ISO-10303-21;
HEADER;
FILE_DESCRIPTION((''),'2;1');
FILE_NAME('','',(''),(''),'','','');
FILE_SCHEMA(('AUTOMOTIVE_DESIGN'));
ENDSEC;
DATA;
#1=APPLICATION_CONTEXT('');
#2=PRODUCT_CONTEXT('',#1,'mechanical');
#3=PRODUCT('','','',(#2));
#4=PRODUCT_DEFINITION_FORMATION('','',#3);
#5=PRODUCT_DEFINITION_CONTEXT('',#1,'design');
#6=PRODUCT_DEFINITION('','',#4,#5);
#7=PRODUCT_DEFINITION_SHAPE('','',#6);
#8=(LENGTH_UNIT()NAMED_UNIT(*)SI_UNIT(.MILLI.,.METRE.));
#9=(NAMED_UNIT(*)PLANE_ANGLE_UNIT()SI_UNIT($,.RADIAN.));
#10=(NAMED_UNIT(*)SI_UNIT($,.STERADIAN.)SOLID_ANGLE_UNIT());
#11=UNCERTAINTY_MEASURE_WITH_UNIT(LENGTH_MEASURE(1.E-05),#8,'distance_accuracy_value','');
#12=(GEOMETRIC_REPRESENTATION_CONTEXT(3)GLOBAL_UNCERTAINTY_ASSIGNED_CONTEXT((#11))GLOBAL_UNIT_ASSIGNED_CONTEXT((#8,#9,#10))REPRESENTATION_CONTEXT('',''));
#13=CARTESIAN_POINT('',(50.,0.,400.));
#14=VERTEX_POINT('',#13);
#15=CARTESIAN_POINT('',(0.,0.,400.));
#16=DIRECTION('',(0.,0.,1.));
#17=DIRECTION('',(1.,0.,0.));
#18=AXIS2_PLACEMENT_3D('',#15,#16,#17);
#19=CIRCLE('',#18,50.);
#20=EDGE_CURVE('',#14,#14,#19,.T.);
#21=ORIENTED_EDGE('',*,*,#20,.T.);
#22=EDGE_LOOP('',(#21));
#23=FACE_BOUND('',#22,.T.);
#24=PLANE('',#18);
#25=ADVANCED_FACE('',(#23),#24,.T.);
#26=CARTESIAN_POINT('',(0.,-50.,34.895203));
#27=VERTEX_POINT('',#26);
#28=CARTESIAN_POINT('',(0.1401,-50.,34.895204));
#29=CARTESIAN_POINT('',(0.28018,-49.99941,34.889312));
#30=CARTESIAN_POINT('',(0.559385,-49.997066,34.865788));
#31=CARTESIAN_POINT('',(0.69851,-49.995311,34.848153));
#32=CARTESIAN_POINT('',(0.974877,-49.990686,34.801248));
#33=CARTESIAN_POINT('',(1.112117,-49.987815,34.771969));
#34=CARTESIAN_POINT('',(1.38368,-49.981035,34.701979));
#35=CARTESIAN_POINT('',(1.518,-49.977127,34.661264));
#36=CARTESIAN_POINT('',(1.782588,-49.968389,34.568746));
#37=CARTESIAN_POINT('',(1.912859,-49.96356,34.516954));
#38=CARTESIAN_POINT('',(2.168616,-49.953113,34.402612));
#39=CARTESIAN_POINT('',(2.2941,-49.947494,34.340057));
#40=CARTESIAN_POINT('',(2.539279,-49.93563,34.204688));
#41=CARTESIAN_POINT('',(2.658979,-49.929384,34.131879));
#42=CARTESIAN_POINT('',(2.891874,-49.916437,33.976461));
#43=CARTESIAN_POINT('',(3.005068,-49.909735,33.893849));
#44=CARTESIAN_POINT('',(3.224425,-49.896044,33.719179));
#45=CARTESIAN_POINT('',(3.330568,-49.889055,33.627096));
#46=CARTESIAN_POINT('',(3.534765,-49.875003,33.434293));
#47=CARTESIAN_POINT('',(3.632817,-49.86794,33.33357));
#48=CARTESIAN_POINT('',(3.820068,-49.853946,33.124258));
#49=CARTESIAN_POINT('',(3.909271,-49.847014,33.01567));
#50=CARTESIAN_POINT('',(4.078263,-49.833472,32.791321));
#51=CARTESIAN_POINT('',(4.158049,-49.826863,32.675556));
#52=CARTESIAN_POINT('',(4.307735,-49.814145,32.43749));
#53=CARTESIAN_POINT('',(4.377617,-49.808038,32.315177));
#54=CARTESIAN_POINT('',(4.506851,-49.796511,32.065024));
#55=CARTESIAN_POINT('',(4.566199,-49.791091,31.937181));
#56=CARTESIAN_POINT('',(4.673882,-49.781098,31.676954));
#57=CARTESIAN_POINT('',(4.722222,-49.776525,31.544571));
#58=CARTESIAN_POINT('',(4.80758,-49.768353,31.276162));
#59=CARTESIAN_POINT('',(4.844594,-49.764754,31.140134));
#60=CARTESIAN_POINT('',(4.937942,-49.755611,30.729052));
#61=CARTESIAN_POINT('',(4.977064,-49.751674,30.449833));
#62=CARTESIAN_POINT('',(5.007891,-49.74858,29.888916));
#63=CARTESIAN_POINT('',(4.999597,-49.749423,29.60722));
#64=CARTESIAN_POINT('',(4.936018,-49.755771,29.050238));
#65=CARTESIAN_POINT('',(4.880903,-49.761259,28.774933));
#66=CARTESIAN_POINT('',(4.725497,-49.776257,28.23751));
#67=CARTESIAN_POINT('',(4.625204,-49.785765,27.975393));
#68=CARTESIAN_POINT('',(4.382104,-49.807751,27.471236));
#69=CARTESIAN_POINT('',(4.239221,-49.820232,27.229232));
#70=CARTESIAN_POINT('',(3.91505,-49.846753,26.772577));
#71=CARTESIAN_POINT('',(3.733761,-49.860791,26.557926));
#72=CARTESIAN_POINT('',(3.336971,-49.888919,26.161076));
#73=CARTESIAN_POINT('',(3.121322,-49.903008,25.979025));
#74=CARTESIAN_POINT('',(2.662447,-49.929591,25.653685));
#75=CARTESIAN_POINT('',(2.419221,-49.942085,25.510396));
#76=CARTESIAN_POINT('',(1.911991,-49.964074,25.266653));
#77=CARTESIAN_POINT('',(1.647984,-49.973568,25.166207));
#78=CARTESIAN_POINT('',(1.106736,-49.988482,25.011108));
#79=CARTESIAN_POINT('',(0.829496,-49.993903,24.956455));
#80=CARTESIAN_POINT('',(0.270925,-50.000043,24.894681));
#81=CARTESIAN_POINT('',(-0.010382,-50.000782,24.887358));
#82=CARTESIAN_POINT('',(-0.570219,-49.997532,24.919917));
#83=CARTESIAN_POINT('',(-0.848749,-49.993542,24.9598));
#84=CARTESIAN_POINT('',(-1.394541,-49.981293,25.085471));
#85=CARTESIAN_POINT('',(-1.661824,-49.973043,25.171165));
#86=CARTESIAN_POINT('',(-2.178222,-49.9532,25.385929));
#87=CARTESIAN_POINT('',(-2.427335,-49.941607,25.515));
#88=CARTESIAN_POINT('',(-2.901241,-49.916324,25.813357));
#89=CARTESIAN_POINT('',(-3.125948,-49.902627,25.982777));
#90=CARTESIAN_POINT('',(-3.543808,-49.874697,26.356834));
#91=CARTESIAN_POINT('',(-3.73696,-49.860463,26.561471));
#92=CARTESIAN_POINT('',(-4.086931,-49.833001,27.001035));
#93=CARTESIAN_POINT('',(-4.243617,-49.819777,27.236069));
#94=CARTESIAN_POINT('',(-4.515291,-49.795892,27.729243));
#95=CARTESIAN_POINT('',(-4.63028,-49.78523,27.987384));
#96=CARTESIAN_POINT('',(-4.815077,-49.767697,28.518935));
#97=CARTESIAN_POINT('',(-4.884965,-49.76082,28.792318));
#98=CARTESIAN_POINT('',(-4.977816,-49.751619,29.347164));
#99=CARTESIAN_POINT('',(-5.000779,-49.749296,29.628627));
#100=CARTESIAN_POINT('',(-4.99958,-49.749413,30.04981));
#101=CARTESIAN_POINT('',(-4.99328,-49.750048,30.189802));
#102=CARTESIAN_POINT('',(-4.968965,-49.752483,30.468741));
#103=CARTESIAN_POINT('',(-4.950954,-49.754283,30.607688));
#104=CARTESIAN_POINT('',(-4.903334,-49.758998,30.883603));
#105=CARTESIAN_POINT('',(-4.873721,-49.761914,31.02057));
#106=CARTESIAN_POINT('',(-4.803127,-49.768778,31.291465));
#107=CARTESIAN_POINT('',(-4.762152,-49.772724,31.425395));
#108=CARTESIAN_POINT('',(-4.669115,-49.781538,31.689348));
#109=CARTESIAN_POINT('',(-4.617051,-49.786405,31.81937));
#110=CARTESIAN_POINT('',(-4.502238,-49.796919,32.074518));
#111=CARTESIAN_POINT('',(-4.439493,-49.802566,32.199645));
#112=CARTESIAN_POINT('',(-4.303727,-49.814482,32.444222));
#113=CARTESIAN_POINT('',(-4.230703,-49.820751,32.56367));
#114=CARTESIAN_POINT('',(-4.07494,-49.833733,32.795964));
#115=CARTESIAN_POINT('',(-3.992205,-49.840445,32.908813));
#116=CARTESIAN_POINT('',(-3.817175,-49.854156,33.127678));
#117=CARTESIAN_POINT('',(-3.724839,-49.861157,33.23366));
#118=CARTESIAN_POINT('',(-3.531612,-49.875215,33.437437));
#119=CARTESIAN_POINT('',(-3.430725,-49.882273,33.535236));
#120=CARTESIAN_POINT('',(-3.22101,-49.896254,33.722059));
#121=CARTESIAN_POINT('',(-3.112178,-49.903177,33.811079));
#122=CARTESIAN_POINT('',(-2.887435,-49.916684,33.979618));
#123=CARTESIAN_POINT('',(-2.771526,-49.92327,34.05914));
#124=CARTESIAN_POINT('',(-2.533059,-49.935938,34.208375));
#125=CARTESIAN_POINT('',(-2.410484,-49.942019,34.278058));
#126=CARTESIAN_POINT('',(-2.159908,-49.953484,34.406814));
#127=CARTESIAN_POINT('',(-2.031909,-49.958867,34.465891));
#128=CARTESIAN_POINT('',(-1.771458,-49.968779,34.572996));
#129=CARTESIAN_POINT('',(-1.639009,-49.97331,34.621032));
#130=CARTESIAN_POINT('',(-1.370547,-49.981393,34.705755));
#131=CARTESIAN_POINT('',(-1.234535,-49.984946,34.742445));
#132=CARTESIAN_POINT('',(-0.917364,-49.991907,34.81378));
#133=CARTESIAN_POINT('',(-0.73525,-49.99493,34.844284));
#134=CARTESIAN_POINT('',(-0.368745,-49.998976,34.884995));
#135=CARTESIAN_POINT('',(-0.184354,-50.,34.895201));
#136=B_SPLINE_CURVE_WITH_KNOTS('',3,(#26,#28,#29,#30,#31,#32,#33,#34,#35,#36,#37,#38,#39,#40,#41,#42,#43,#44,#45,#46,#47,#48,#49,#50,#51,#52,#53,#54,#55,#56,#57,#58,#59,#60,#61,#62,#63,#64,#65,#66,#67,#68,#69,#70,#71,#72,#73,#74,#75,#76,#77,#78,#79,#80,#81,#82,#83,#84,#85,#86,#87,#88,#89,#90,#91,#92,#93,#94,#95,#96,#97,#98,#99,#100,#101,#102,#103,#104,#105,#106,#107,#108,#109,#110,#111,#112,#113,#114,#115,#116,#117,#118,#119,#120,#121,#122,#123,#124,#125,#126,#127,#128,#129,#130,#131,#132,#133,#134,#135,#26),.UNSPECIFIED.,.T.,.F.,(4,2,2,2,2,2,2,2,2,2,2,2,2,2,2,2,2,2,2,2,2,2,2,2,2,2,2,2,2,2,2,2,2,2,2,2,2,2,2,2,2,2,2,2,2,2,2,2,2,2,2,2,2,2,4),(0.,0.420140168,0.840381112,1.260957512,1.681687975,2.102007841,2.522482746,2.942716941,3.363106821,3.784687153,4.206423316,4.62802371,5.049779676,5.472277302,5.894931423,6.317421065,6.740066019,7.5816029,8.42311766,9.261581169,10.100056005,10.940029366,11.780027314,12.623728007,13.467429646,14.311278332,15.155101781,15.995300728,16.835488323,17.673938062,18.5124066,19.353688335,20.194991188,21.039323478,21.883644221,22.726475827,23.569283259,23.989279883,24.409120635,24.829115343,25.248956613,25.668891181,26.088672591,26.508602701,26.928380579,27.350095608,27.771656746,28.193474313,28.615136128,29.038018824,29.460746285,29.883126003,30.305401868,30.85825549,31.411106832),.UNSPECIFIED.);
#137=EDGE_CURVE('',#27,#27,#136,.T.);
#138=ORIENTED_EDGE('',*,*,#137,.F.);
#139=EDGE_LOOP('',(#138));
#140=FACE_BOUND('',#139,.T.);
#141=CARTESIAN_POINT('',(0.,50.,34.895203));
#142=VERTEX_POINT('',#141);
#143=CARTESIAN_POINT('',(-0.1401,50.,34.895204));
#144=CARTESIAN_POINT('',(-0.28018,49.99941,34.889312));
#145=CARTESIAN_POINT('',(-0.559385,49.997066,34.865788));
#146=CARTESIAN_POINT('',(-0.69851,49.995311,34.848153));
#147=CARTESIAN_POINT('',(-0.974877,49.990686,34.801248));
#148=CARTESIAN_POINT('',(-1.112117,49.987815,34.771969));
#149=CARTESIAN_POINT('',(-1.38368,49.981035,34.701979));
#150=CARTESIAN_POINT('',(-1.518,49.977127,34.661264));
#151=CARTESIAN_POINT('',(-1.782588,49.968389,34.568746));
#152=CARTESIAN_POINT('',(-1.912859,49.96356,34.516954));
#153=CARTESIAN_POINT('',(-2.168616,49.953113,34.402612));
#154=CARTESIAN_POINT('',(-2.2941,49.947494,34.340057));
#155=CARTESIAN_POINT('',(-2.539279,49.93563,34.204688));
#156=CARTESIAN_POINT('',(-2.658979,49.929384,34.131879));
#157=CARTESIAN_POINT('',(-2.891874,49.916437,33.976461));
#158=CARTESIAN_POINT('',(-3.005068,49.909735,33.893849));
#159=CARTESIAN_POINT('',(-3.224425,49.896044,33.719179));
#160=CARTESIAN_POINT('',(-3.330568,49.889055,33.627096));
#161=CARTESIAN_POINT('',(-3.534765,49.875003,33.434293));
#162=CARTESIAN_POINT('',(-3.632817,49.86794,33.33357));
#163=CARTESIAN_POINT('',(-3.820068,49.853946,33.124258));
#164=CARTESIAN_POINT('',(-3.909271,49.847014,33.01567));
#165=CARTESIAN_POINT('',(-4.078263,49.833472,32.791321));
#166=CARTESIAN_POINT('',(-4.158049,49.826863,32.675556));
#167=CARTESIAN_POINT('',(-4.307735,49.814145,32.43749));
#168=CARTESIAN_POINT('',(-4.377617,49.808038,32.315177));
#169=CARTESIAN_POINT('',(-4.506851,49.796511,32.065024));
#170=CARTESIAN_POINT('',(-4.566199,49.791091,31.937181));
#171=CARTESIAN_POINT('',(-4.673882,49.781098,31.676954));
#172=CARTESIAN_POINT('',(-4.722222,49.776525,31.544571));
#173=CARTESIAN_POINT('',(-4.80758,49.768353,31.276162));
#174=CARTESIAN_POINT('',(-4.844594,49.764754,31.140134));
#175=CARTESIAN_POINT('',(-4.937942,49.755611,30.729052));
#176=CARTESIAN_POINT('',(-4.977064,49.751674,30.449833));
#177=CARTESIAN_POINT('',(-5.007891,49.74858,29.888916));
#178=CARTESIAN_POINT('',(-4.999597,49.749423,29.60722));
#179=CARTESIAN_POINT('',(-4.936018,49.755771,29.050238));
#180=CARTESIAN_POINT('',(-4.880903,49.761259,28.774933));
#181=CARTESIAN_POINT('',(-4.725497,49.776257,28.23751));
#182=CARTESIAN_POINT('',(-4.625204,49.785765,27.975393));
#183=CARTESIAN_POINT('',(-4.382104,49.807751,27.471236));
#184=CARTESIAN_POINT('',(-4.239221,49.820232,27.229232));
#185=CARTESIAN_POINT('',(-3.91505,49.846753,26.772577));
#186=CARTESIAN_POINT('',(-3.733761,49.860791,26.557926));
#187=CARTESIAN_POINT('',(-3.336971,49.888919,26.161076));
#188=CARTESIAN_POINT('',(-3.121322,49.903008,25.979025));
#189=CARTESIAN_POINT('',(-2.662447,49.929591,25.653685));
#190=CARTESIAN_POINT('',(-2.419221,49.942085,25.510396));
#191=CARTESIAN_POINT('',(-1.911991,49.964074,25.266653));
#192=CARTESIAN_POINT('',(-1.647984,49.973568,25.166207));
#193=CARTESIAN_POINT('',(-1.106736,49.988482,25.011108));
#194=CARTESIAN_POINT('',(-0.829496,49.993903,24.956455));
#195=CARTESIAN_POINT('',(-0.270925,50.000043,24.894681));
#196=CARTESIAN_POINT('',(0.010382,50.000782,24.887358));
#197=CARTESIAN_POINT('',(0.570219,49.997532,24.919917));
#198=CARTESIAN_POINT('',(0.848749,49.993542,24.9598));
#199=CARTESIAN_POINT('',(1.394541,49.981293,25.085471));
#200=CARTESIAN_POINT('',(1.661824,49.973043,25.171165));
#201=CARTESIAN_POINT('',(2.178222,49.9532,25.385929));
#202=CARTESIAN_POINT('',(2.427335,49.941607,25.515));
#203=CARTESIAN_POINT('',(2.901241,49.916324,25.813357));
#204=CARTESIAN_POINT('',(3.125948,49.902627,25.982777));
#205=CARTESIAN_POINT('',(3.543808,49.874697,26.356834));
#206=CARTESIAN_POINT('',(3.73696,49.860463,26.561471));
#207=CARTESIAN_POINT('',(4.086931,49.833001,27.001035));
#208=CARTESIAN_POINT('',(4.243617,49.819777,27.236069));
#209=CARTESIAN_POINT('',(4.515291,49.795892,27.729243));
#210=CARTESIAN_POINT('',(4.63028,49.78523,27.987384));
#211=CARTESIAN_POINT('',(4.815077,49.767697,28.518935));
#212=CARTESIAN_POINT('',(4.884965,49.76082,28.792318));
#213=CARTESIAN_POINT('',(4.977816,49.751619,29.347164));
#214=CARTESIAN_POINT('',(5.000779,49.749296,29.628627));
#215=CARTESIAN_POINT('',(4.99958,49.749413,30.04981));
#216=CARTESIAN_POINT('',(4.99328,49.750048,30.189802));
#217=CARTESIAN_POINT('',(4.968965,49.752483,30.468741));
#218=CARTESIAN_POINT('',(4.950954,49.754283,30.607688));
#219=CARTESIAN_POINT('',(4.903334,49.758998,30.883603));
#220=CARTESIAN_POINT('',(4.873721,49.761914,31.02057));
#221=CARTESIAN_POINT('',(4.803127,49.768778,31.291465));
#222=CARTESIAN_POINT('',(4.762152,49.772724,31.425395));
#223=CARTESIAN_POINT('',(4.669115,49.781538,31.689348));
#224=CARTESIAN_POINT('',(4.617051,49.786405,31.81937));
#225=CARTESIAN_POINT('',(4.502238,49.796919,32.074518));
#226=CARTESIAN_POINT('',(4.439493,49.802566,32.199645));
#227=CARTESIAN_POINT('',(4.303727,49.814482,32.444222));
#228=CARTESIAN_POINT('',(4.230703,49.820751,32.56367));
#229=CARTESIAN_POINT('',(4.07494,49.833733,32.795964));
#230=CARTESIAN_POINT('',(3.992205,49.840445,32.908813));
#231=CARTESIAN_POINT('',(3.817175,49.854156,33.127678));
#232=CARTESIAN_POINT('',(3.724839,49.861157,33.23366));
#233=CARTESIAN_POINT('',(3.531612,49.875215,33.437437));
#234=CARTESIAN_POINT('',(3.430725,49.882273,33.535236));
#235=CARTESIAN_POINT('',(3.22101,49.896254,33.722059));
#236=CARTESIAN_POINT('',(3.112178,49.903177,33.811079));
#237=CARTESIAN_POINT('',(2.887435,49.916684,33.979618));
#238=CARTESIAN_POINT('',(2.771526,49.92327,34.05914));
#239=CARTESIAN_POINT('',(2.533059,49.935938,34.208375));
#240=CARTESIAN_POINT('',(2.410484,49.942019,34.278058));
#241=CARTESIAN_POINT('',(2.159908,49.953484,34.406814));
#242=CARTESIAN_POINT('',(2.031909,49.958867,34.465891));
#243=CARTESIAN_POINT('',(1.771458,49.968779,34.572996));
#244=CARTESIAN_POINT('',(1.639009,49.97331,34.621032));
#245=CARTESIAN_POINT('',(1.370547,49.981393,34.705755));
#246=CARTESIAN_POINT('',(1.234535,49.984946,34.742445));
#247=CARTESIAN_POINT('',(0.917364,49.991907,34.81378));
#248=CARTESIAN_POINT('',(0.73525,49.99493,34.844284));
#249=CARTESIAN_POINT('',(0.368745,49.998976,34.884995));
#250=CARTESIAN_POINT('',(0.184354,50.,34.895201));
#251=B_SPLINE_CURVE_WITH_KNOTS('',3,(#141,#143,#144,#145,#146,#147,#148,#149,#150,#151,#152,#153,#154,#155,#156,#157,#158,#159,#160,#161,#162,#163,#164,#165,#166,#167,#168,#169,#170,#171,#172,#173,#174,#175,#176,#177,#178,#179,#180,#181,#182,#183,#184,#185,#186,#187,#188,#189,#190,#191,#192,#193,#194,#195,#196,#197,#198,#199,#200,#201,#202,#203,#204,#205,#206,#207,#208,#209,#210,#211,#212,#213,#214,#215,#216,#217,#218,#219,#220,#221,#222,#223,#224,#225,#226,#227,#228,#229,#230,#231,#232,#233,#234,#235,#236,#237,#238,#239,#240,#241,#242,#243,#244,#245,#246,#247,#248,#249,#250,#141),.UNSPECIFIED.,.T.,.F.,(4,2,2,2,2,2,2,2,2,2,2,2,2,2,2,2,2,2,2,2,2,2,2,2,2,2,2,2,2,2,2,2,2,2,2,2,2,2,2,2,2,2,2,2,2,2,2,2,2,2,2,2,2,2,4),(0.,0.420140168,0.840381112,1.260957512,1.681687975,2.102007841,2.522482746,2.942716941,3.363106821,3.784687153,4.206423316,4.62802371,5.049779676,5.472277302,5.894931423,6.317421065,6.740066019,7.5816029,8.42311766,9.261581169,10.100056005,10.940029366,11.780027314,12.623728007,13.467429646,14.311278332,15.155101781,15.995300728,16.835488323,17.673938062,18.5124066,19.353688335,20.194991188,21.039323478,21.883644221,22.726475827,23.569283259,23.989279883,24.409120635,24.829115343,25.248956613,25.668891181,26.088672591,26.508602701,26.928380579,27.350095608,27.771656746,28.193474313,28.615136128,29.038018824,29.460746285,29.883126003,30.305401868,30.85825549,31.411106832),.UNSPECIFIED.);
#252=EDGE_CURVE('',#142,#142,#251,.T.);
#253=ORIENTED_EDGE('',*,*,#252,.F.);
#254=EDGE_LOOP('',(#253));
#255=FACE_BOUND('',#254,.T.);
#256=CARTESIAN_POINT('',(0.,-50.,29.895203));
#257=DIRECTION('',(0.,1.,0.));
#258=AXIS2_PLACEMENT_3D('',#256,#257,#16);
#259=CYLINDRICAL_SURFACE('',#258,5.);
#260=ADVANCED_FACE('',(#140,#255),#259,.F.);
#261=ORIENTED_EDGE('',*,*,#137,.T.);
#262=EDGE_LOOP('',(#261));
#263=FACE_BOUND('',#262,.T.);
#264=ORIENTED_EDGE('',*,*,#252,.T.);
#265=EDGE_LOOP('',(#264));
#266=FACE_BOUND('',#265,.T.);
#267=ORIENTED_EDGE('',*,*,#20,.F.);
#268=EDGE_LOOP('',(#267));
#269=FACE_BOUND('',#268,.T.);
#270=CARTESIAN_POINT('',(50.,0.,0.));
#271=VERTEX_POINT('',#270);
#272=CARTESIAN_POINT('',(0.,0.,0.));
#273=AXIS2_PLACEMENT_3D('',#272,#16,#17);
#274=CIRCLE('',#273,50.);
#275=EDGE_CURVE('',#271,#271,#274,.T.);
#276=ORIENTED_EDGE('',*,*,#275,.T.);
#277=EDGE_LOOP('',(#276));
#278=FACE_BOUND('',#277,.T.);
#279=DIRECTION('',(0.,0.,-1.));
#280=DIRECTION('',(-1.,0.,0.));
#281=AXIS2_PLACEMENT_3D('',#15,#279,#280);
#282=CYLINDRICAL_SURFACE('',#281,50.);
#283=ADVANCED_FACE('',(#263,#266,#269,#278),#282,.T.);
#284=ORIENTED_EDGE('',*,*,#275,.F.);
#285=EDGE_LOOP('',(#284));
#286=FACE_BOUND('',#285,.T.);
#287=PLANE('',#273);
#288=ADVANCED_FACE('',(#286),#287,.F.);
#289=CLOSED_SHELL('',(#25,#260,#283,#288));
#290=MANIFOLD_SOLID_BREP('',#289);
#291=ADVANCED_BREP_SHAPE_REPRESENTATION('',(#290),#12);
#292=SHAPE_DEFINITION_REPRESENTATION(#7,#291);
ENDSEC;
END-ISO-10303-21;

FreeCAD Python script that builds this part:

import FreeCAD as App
import Part
import Sketcher

doc = App.newDocument("Part")
params = doc.addObject("Spreadsheet::Sheet", "Params")
for row, (alias, value) in enumerate([
    ("sketch1_diameter", "100 mm"),
    ("pad1_length", "400 mm"),
    ("sketch2_diameter", "10 mm"),
], start=1):
    params.set(f"A{row}", alias)
    params.set(f"B{row}", "=" + value)
    params.setAlias(f"B{row}", alias)

body = doc.addObject("PartDesign::Body", "Body")

sketch1 = doc.addObject("Sketcher::SketchObject", "Sketch")
body.addObject(sketch1)
sketch1.AttachmentSupport = (doc.XY_Plane, [""])
sketch1.MapMode = "FlatFace"
sketch1.addGeometry(Part.Circle(App.Vector(0, 0, 0), App.Vector(0, 0, 1), 50), False)
sketch1.addConstraint([
    Sketcher.Constraint("Coincident", 0, 3, -1, 1),
    Sketcher.Constraint("Diameter", 0, 100.0),
])
sketch1.setExpression("Constraints[1]", "Params.sketch1_diameter")
pad1 = doc.addObject("PartDesign::Pad", "Pad")
body.addObject(pad1)
pad1.Profile = sketch1
pad1.setExpression("Length", "Params.pad1_length")

sketch2 = doc.addObject("Sketcher::SketchObject", "Sketch001")
body.addObject(sketch2)
sketch2.AttachmentSupport = (doc.XZ_Plane, [""])
sketch2.MapMode = "FlatFace"
sketch2.addGeometry(Part.Circle(App.Vector(0, 30, 0), App.Vector(0, 0, 1), 5), False)
sketch2.addConstraint([
    Sketcher.Constraint("PointOnObject", 0, 3, -2),
    Sketcher.Constraint("Diameter", 0, 10.0),
    Sketcher.Constraint("DistanceY", -1, 1, 0, 3, 29.895203),
])
sketch2.setExpression("Constraints[1]", "Params.sketch2_diameter")
pocket1 = doc.addObject("PartDesign::Pocket", "Pocket")
body.addObject(pocket1)
pocket1.Profile = sketch2
pocket1.Type = "ThroughAll"
pocket1.Midplane = True

doc.recompute()
